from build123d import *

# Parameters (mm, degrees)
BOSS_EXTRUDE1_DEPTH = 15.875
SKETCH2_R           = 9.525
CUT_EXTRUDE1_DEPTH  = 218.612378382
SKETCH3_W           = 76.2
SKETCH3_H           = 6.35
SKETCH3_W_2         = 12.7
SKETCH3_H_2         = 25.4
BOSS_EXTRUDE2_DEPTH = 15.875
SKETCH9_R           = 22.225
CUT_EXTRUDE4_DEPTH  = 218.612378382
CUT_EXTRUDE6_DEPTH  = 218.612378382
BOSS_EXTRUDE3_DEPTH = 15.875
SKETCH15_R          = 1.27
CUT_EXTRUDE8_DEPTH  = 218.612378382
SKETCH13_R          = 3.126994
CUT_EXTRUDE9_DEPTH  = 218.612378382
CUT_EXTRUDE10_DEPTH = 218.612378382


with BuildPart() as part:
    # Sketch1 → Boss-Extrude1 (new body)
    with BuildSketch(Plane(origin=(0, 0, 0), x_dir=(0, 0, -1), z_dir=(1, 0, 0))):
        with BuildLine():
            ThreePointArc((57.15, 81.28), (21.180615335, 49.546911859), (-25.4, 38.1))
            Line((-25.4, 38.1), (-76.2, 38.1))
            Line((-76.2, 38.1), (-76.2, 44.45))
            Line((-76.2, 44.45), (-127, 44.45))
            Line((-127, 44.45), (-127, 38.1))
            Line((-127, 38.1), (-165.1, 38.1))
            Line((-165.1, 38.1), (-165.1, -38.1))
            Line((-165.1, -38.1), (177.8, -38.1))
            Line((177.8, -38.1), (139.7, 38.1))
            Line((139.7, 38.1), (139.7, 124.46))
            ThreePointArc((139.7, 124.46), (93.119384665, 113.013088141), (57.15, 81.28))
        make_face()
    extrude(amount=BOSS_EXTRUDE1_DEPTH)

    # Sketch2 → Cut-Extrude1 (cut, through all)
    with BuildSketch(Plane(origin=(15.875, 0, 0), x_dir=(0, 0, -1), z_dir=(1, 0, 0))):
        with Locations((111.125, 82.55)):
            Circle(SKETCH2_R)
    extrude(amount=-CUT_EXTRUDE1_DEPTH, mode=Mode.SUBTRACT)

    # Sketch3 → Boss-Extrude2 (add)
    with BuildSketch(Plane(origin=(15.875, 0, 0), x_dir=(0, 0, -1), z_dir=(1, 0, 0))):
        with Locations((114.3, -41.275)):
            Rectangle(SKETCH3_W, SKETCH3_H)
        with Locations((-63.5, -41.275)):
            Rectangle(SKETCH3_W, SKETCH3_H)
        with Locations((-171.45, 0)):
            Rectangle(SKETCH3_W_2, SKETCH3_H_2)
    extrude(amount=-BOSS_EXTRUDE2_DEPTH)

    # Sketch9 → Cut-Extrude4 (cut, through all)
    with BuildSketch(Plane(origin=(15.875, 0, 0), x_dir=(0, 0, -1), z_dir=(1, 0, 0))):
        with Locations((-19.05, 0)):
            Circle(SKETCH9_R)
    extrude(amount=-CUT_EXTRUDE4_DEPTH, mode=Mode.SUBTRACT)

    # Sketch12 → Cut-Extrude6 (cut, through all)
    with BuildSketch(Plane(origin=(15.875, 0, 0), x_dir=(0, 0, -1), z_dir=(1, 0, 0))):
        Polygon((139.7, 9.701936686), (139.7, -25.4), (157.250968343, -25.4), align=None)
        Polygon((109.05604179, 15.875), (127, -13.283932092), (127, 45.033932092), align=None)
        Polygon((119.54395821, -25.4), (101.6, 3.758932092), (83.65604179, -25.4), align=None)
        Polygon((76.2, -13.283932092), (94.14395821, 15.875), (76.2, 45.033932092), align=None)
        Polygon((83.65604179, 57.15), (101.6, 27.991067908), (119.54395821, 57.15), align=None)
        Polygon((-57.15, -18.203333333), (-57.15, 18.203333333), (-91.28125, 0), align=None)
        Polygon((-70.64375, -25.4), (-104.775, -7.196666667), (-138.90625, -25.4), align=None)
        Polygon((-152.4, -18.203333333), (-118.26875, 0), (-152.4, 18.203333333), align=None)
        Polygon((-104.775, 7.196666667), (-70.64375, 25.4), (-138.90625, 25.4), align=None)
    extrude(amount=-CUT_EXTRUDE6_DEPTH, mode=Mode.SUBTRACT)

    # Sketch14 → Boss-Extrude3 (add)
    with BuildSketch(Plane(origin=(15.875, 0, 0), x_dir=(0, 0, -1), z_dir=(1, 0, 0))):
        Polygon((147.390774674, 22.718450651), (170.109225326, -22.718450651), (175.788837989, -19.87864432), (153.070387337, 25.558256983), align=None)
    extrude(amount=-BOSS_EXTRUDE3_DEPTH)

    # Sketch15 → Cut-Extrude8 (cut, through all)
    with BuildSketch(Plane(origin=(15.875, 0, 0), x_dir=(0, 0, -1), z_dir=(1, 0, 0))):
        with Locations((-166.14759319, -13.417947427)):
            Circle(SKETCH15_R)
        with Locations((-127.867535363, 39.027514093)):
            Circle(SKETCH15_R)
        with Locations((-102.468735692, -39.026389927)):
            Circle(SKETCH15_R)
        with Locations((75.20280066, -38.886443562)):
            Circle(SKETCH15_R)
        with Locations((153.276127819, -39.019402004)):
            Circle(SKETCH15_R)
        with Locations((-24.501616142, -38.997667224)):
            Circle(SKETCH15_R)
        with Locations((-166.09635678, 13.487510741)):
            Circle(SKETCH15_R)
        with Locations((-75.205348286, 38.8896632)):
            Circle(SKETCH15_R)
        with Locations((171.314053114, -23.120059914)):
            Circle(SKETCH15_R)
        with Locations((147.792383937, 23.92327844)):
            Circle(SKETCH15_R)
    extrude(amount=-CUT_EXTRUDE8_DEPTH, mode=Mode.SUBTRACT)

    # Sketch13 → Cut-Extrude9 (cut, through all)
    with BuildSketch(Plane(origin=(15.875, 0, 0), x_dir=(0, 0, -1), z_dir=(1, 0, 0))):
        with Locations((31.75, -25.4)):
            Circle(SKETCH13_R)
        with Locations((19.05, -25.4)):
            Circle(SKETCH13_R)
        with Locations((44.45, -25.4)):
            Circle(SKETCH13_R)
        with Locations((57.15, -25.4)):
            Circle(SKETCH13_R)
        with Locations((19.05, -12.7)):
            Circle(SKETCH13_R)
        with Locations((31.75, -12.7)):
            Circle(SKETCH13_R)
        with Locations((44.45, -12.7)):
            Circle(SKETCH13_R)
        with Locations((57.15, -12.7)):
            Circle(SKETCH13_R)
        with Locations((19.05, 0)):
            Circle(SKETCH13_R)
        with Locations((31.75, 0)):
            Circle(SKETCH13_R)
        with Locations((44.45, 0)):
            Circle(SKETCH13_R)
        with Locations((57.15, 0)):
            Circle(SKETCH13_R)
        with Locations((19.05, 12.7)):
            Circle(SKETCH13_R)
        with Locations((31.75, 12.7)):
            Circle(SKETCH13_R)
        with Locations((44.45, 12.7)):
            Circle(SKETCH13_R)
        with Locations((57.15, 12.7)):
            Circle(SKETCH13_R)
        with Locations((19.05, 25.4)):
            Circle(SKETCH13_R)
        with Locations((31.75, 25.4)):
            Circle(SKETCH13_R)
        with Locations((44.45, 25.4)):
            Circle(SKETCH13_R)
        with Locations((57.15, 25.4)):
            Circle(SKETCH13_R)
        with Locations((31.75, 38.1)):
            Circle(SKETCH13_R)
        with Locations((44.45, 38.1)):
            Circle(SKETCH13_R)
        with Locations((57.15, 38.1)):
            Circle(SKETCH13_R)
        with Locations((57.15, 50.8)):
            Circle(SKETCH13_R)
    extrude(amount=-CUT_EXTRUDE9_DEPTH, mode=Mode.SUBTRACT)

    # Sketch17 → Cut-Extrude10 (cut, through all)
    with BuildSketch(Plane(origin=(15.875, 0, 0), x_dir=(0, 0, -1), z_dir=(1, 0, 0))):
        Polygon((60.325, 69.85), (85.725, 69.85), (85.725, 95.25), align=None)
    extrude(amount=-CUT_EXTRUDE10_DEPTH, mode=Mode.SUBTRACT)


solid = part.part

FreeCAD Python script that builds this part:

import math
import FreeCAD as App
import Part
import Sketcher
Q = App.Units.Quantity

doc = App.newDocument("Part")
body = doc.addObject("PartDesign::Body", "Body")

# Sketch on YZ plane
sketch1 = body.newObject("Sketcher::SketchObject", "Sketch")
sketch1.AttachmentSupport = (doc.getObject("YZ_Plane"), [""])
sketch1.MapMode = "FlatFace"
sketch1.addGeometry([
    Part.ArcOfCircle(Part.Circle(App.Vector(139, 25, 0), App.Vector(0, 0, 1), 100), math.radians(180), math.radians(235)),  # 0
    Part.LineSegment(App.Vector(38, 25, 0), App.Vector(38, 76, 0)),  # 1
    Part.LineSegment(App.Vector(38, 76, 0), App.Vector(44, 76, 0)),  # 2
    Part.LineSegment(App.Vector(44, 76, 0), App.Vector(44, 127, 0)),  # 3
    Part.LineSegment(App.Vector(44, 127, 0), App.Vector(38, 127, 0)),  # 4
    Part.LineSegment(App.Vector(38, 127, 0), App.Vector(38, 165, 0)),  # 5
    Part.LineSegment(App.Vector(38, 165, 0), App.Vector(-38, 165, 0)),  # 6
    Part.LineSegment(App.Vector(-38, 165, 0), App.Vector(-38, -178, 0)),  # 7
    Part.LineSegment(App.Vector(-38, -178, 0), App.Vector(38, -140, 0)),  # 8
    Part.LineSegment(App.Vector(38, -140, 0), App.Vector(124, -140, 0)),  # 9
    Part.ArcOfCircle(Part.Circle(App.Vector(24, -140, 0), App.Vector(0, 0, 1), 100), math.radians(0), math.radians(55)),  # 10
], False)
sketch1.addConstraint([
    Sketcher.Constraint("Tangent", 0, 1, 1, 1),
    Sketcher.Constraint("Coincident", 1, 2, 2, 1),
    Sketcher.Constraint("Coincident", 2, 2, 3, 1),
    Sketcher.Constraint("Coincident", 3, 2, 4, 1),
    Sketcher.Constraint("Coincident", 4, 2, 5, 1),
    Sketcher.Constraint("Coincident", 5, 2, 6, 1),
    Sketcher.Constraint("Coincident", 6, 2, 7, 1),
    Sketcher.Constraint("Coincident", 7, 2, 8, 1),
    Sketcher.Constraint("Coincident", 8, 2, 9, 1),
    Sketcher.Constraint("Coincident", 9, 2, 10, 1),
    Sketcher.Constraint("Tangent", 10, 2, 0, 2),
    Sketcher.Constraint("Vertical", 1),
    Sketcher.Constraint("Horizontal", 2),
    Sketcher.Constraint("Vertical", 3),
    Sketcher.Constraint("Horizontal", 4),
    Sketcher.Constraint("Vertical", 5),
    Sketcher.Constraint("Horizontal", 6),
    Sketcher.Constraint("Vertical", 7),
    Sketcher.Constraint("Horizontal", 9),
    Sketcher.Constraint("Equal", 0, 10),
    Sketcher.Constraint("Horizontal", 10, 3, 8, 2),
    Sketcher.Constraint("Vertical", 1, 2, 4, 2),
    Sketcher.Constraint("Vertical", 5, 2, 8, 2),
    Sketcher.Constraint("Equal", 1, 3),
    Sketcher.Constraint("DistanceX", 6, 2, 6, 1, Q("3 in")),
    Sketcher.Constraint("DistanceY", 1, 1, 1, 2, Q("2 in")),
    Sketcher.Constraint("DistanceX", 9, 1, 9, 2, Q("3.4 in")),
    Sketcher.Constraint("DistanceY", 5, 1, 5, 2, Q("1.5 in")),
    Sketcher.Constraint("DistanceY", 7, 2, 7, 1, Q("13.5 in")),
    Sketcher.Constraint("DistanceY", -1, 1, 0, 3, Q("1 in")),
    Sketcher.Constraint("DistanceX", 2, 1, 2, 2, Q("0.25 in")),
    Sketcher.Constraint("DistanceY", 10, 3, -1, 1, Q("5.5 in")),
    Sketcher.Constraint("DistanceX", -1, 1, 0, 1, Q("1.5 in")),
])
pad1 = body.newObject("PartDesign::Pad", "Pad")
pad1.Profile = sketch1
pad1.Length = Q("0.625 in")

# Sketch on YZ plane
sketch2 = body.newObject("Sketcher::SketchObject", "Sketch001")
sketch2.AttachmentSupport = (doc.getObject("YZ_Plane"), [""])
sketch2.MapMode = "FlatFace"
sketch2.AttachmentOffset = App.Placement(App.Vector(0, 0, 0.625 * 25.4), App.Rotation())
sketch2.addGeometry(Part.Circle(App.Vector(83, -111, 0), App.Vector(0, 0, 1), 10), False)
sketch2.addConstraint([
    Sketcher.Constraint("Diameter", 0, Q("0.75 in")),
    Sketcher.Constraint("DistanceX", -1, 1, 0, 3, Q("3.25 in")),
    Sketcher.Constraint("DistanceY", 0, 3, -1, 1, Q("4.375 in")),
])
pocket1 = body.newObject("PartDesign::Pocket", "Pocket")
pocket1.Profile = sketch2
pocket1.Type = "ThroughAll"

# Sketch on YZ plane
sketch3 = body.newObject("Sketcher::SketchObject", "Sketch002")
sketch3.AttachmentSupport = (doc.getObject("YZ_Plane"), [""])
sketch3.MapMode = "FlatFace"
sketch3.AttachmentOffset = App.Placement(App.Vector(0, 0, 0.625 * 25.4), App.Rotation())
sketch3.addGeometry([
    Part.LineSegment(App.Vector(-38, -76, 0), App.Vector(-44, -76, 0)),  # 0
    Part.LineSegment(App.Vector(-44, -76, 0), App.Vector(-44, -152, 0)),  # 1
    Part.LineSegment(App.Vector(-44, -152, 0), App.Vector(-38, -152, 0)),  # 2
    Part.LineSegment(App.Vector(-38, -152, 0), App.Vector(-38, -76, 0)),  # 3
    Part.LineSegment(App.Vector(-38, 102, 0), App.Vector(-44, 102, 0)),  # 4
    Part.LineSegment(App.Vector(-44, 102, 0), App.Vector(-44, 25, 0)),  # 5
    Part.LineSegment(App.Vector(-44, 25, 0), App.Vector(-38, 25, 0)),  # 6
    Part.LineSegment(App.Vector(-38, 25, 0), App.Vector(-38, 102, 0)),  # 7
    Part.LineSegment(App.Vector(13, 178, 0), App.Vector(-13, 178, 0)),  # 8
    Part.LineSegment(App.Vector(-13, 178, 0), App.Vector(-13, 165, 0)),  # 9
    Part.LineSegment(App.Vector(-13, 165, 0), App.Vector(13, 165, 0)),  # 10
    Part.LineSegment(App.Vector(13, 165, 0), App.Vector(13, 178, 0)),  # 11
], False)
sketch3.addConstraint([
    Sketcher.Constraint("Coincident", 0, 2, 1, 1),
    Sketcher.Constraint("Coincident", 1, 2, 2, 1),
    Sketcher.Constraint("Coincident", 2, 2, 3, 1),
    Sketcher.Constraint("Coincident", 3, 2, 0, 1),
    Sketcher.Constraint("Coincident", 4, 2, 5, 1),
    Sketcher.Constraint("Coincident", 5, 2, 6, 1),
    Sketcher.Constraint("Coincident", 6, 2, 7, 1),
    Sketcher.Constraint("Coincident", 7, 2, 4, 1),
    Sketcher.Constraint("Coincident", 8, 2, 9, 1),
    Sketcher.Constraint("Coincident", 9, 2, 10, 1),
    Sketcher.Constraint("Coincident", 10, 2, 11, 1),
    Sketcher.Constraint("Coincident", 11, 2, 8, 1),
    Sketcher.Constraint("Horizontal", 0),
    Sketcher.Constraint("Vertical", 1),
    Sketcher.Constraint("Horizontal", 2),
    Sketcher.Constraint("Vertical", 3),
    Sketcher.Constraint("Horizontal", 4),
    Sketcher.Constraint("Vertical", 5),
    Sketcher.Constraint("Horizontal", 6),
    Sketcher.Constraint("Vertical", 7),
    Sketcher.Constraint("Horizontal", 8),
    Sketcher.Constraint("Vertical", 9),
    Sketcher.Constraint("Horizontal", 10),
    Sketcher.Constraint("Vertical", 11),
    Sketcher.Constraint("Vertical", 1, 2, 4, 2),
    Sketcher.Constraint("Vertical", 3, 2, 6, 2),
    Sketcher.Constraint("Equal", 3, 5),
    Sketcher.Constraint("DistanceX", 8, 2, 8, 1, Q("1 in")),
    Sketcher.Constraint("DistanceY", 1, 2, 1, 1, Q("3 in")),
    Sketcher.Constraint("DistanceY", 9, 2, 9, 1, Q("0.5 in")),
    Sketcher.Constraint("DistanceY", 0, 2, -1, 1, Q("3 in")),
    Sketcher.Constraint("DistanceY", -1, 1, 4, 2, Q("4 in")),
    Sketcher.Constraint("DistanceY", -1, 1, 8, 2, Q("7 in")),
    Sketcher.Constraint("DistanceX", 7, 2, 8, 2, Q("1 in")),
    Sketcher.Constraint("DistanceX", 0, 2, 0, 1, Q("0.25 in")),
    Sketcher.Constraint("DistanceX", 2, 2, -1, 1, Q("1.5 in")),
])
pad2 = body.newObject("PartDesign::Pad", "Pad001")
pad2.Profile = sketch3
pad2.Length = Q("0.625 in")
pad2.Reversed = True

# Sketch on YZ plane
sketch4 = body.newObject("Sketcher::SketchObject", "Sketch003")
sketch4.AttachmentSupport = (doc.getObject("YZ_Plane"), [""])
sketch4.MapMode = "FlatFace"
sketch4.AttachmentOffset = App.Placement(App.Vector(0, 0, 0.625 * 25.4), App.Rotation())
sketch4.addGeometry(Part.Circle(App.Vector(0, 19, 0), App.Vector(0, 0, 1), 22), False)
sketch4.addConstraint([
    Sketcher.Constraint("PointOnObject", 0, 3, -2),
    Sketcher.Constraint("Diameter", 0, Q("1.75 in")),
    Sketcher.Constraint("DistanceY", -1, 1, 0, 3, Q("0.75 in")),
])
pocket2 = body.newObject("PartDesign::Pocket", "Pocket001")
pocket2.Profile = sketch4
pocket2.Type = "ThroughAll"

# Sketch on YZ plane
sketch5 = body.newObject("Sketcher::SketchObject", "Sketch004")
sketch5.AttachmentSupport = (doc.getObject("YZ_Plane"), [""])
sketch5.MapMode = "FlatFace"
sketch5.AttachmentOffset = App.Placement(App.Vector(0, 0, 0.625 * 25.4), App.Rotation())
sketch5.addGeometry([
    Part.LineSegment(App.Vector(10, -140, 0), App.Vector(-25, -140, 0)),  # 0
    Part.LineSegment(App.Vector(-25, -140, 0), App.Vector(-25, -157, 0)),  # 1
    Part.LineSegment(App.Vector(-25, -157, 0), App.Vector(10, -140, 0)),  # 2
    Part.LineSegment(App.Vector(16, -109, 0), App.Vector(-13, -127, 0)),  # 3
    Part.LineSegment(App.Vector(-13, -127, 0), App.Vector(45, -127, 0)),  # 4
    Part.LineSegment(App.Vector(45, -127, 0), App.Vector(16, -109, 0)),  # 5
    Part.LineSegment(App.Vector(-25, -120, 0), App.Vector(4, -102, 0)),  # 6
    Part.LineSegment(App.Vector(4, -102, 0), App.Vector(-25, -84, 0)),  # 7
    Part.LineSegment(App.Vector(-25, -84, 0), App.Vector(-25, -120, 0)),  # 8
    Part.LineSegment(App.Vector(-13, -76, 0), App.Vector(16, -94, 0)),  # 9
    Part.LineSegment(App.Vector(16, -94, 0), App.Vector(45, -76, 0)),  # 10
    Part.LineSegment(App.Vector(45, -76, 0), App.Vector(-13, -76, 0)),  # 11
    Part.LineSegment(App.Vector(57, -84, 0), App.Vector(28, -102, 0)),  # 12
    Part.LineSegment(App.Vector(28, -102, 0), App.Vector(57, -120, 0)),  # 13
    Part.LineSegment(App.Vector(57, -120, 0), App.Vector(57, -84, 0)),  # 14
    Part.LineSegment(App.Vector(-18, 57, 0), App.Vector(18, 57, 0)),  # 15
    Part.LineSegment(App.Vector(18, 57, 0), App.Vector(0, 91, 0)),  # 16
    Part.LineSegment(App.Vector(0, 91, 0), App.Vector(-18, 57, 0)),  # 17
    Part.LineSegment(App.Vector(-25, 71, 0), App.Vector(-7, 105, 0)),  # 18
    Part.LineSegment(App.Vector(-7, 105, 0), App.Vector(-25, 139, 0)),  # 19
    Part.LineSegment(App.Vector(-25, 139, 0), App.Vector(-25, 71, 0)),  # 20
    Part.LineSegment(App.Vector(-18, 152, 0), App.Vector(0, 118, 0)),  # 21
    Part.LineSegment(App.Vector(0, 118, 0), App.Vector(18, 152, 0)),  # 22
    Part.LineSegment(App.Vector(18, 152, 0), App.Vector(-18, 152, 0)),  # 23
    Part.LineSegment(App.Vector(7, 105, 0), App.Vector(25, 71, 0)),  # 24
    Part.LineSegment(App.Vector(25, 71, 0), App.Vector(25, 139, 0)),  # 25
    Part.LineSegment(App.Vector(25, 139, 0), App.Vector(7, 105, 0)),  # 26
], False)
sketch5.addConstraint([
    Sketcher.Constraint("Coincident", 0, 2, 1, 1),
    Sketcher.Constraint("Coincident", 1, 2, 2, 1),
    Sketcher.Constraint("Coincident", 2, 2, 0, 1),
    Sketcher.Constraint("Coincident", 3, 2, 4, 1),
    Sketcher.Constraint("Coincident", 4, 2, 5, 1),
    Sketcher.Constraint("Coincident", 5, 2, 3, 1),
    Sketcher.Constraint("Coincident", 6, 2, 7, 1),
    Sketcher.Constraint("Coincident", 7, 2, 8, 1),
    Sketcher.Constraint("Coincident", 8, 2, 6, 1),
    Sketcher.Constraint("Coincident", 9, 2, 10, 1),
    Sketcher.Constraint("Coincident", 10, 2, 11, 1),
    Sketcher.Constraint("Coincident", 11, 2, 9, 1),
    Sketcher.Constraint("Coincident", 12, 2, 13, 1),
    Sketcher.Constraint("Coincident", 13, 2, 14, 1),
    Sketcher.Constraint("Coincident", 14, 2, 12, 1),
    Sketcher.Constraint("Coincident", 15, 2, 16, 1),
    Sketcher.Constraint("Coincident", 16, 2, 17, 1),
    Sketcher.Constraint("Coincident", 17, 2, 15, 1),
    Sketcher.Constraint("Coincident", 18, 2, 19, 1),
    Sketcher.Constraint("Coincident", 19, 2, 20, 1),
    Sketcher.Constraint("Coincident", 20, 2, 18, 1),
    Sketcher.Constraint("Coincident", 21, 2, 22, 1),
    Sketcher.Constraint("Coincident", 22, 2, 23, 1),
    Sketcher.Constraint("Coincident", 23, 2, 21, 1),
    Sketcher.Constraint("Coincident", 24, 2, 25, 1),
    Sketcher.Constraint("Coincident", 25, 2, 26, 1),
    Sketcher.Constraint("Coincident", 26, 2, 24, 1),
    Sketcher.Constraint("Horizontal", 0),
    Sketcher.Constraint("Vertical", 1),
    Sketcher.Constraint("Horizontal", 4),
    Sketcher.Constraint("Vertical", 8),
    Sketcher.Constraint("Horizontal", 11),
    Sketcher.Constraint("Vertical", 14),
    Sketcher.Constraint("Horizontal", 15),
    Sketcher.Constraint("Vertical", 20),
    Sketcher.Constraint("Horizontal", 23),
    Sketcher.Constraint("Vertical", 25),
    Sketcher.Constraint("Symmetric", 20, 2, 24, 2, -2),
    Sketcher.Constraint("Symmetric", 18, 2, 26, 2, -2),
    Sketcher.Constraint("PointOnObject", 16, 2, -2),
    Sketcher.Constraint("PointOnObject", 21, 2, -2),
    Sketcher.Constraint("Parallel", 3, 6),
    Sketcher.Constraint("Parallel", 5, 7),
    Sketcher.Constraint("Parallel", 7, 9),
    Sketcher.Constraint("Parallel", 6, 10),
    Sketcher.Constraint("Parallel", 10, 12),
    Sketcher.Constraint("Parallel", 9, 13),
    Sketcher.Constraint("Parallel", 17, 18),
    Sketcher.Constraint("Parallel", 16, 19),
    Sketcher.Constraint("Parallel", 19, 21),
    Sketcher.Constraint("Parallel", 18, 22),
    Sketcher.Constraint("Parallel", 21, 24),
    Sketcher.Constraint("Parallel", 22, 26),
    Sketcher.Constraint("Horizontal", 6, 2, 12, 2),
    Sketcher.Constraint("Horizontal", 8, 2, 13, 2),
    Sketcher.Constraint("Horizontal", 7, 2, 14, 2),
    Sketcher.Constraint("Vertical", 1, 2, 7, 2),
    Sketcher.Constraint("Vertical", 5, 2, 9, 2),
    Sketcher.Constraint("Vertical", 4, 2, 10, 2),
    Sketcher.Constraint("Vertical", 8, 2, 19, 2),
    Sketcher.Constraint("Vertical", 15, 2, 22, 2),
    Sketcher.Constraint("Equal", 5, 6),
    Sketcher.Constraint("Equal", 17, 18),
    Sketcher.Constraint("DistanceX", 0, 2, -1, 1, Q("1 in")),
    Sketcher.Constraint("DistanceY", 3, 2, -1, 1, Q("5 in")),
    Sketcher.Constraint("DistanceY", 6, 2, -1, 1, Q("4 in")),
    Sketcher.Constraint("DistanceY", 10, 2, -1, 1, Q("3 in")),
    Sketcher.Constraint("DistanceY", -1, 1, 22, 2, Q("6 in")),
    Sketcher.Constraint("DistanceY", 0, 2, -1, 1, Q("5.5 in")),
    Sketcher.Constraint("DistanceY", 20, 2, 20, 1, Q("2.6875 in")),
    Sketcher.Constraint("DistanceX", -1, 1, 13, 2, Q("2.25 in")),
    Sketcher.Constraint("DistanceY", -1, 1, 15, 2, Q("2.25 in")),
    Sketcher.Constraint("DistanceX", -1, 1, 5, 2, Q("0.625 in")),
    Sketcher.Constraint("DistanceY", -1, 1, 18, 2, Q("4.125 in")),
    Sketcher.Constraint("DistanceY", 1, 2, 1, 1, Q("17.550968 mm")),
    Sketcher.Constraint("DistanceX", 15, 2, 10, 2, Q("26.830599 mm")),
    Sketcher.Constraint("Distance", 2, Q("39.245158 mm")),
    Sketcher.Constraint("Distance", 3, Q("34.237829 mm")),
    Sketcher.Constraint("DistanceX", 4, 1, 4, 2, Q("58.317864 mm")),
])
pocket3 = body.newObject("PartDesign::Pocket", "Pocket002")
pocket3.Profile = sketch5
pocket3.Type = "ThroughAll"

# Sketch on YZ plane
sketch6 = body.newObject("Sketcher::SketchObject", "Sketch005")
sketch6.AttachmentSupport = (doc.getObject("YZ_Plane"), [""])
sketch6.MapMode = "FlatFace"
sketch6.AttachmentOffset = App.Placement(App.Vector(0, 0, 0.625 * 25.4), App.Rotation())
sketch6.addGeometry([
    Part.LineSegment(App.Vector(23, -147, 0), App.Vector(-23, -170, 0)),
    Part.LineSegment(App.Vector(-23, -170, 0), App.Vector(-20, -176, 0)),
    Part.LineSegment(App.Vector(-20, -176, 0), App.Vector(26, -153, 0)),
    Part.LineSegment(App.Vector(26, -153, 0), App.Vector(23, -147, 0)),
], False)
sketch6.addConstraint([
    Sketcher.Constraint("Coincident", 0, 2, 1, 1),
    Sketcher.Constraint("Coincident", 1, 2, 2, 1),
    Sketcher.Constraint("Coincident", 2, 2, 3, 1),
    Sketcher.Constraint("Coincident", 3, 2, 0, 1),
    Sketcher.Constraint("Perpendicular", 0, 1),
    Sketcher.Constraint("Perpendicular", 1, 2),
    Sketcher.Constraint("Perpendicular", 2, 3),
    Sketcher.Constraint("Distance", 0, Q("2 in")),
    Sketcher.Constraint("Distance", 1, Q("0.25 in")),
    Sketcher.Constraint("DistanceX", 1, 2, 2, 2, Q("45.436901 mm")),
    Sketcher.Constraint("DistanceX", 0, 2, -1, 1, Q("22.718451 mm")),
    Sketcher.Constraint("DistanceY", 0, 2, -1, 1, Q("170.109225 mm")),
])
pad3 = body.newObject("PartDesign::Pad", "Pad002")
pad3.Profile = sketch6
pad3.Length = Q("0.625 in")
pad3.Reversed = True

# Sketch on YZ plane
sketch7 = body.newObject("Sketcher::SketchObject", "Sketch006")
sketch7.AttachmentSupport = (doc.getObject("YZ_Plane"), [""])
sketch7.MapMode = "FlatFace"
sketch7.AttachmentOffset = App.Placement(App.Vector(0, 0, 0.625 * 25.4), App.Rotation())
sketch7.addGeometry([
    Part.Circle(App.Vector(-13.4, 166.1, 0), App.Vector(0, 0, 1), 1.3),  # 0
    Part.Circle(App.Vector(39, 127.9, 0), App.Vector(0, 0, 1), 1.3),  # 1
    Part.Circle(App.Vector(-39, 102.5, 0), App.Vector(0, 0, 1), 1.3),  # 2
    Part.Circle(App.Vector(-38.9, -75.2, 0), App.Vector(0, 0, 1), 1.3),  # 3
    Part.Circle(App.Vector(-39, -153.3, 0), App.Vector(0, 0, 1), 1.3),  # 4
    Part.Circle(App.Vector(-39, 24.5, 0), App.Vector(0, 0, 1), 1.3),  # 5
    Part.Circle(App.Vector(13.5, 166.1, 0), App.Vector(0, 0, 1), 1.3),  # 6
    Part.Circle(App.Vector(38.9, 75.2, 0), App.Vector(0, 0, 1), 1.3),  # 7
    Part.Circle(App.Vector(-23.1, -171.3, 0), App.Vector(0, 0, 1), 1.3),  # 8
    Part.Circle(App.Vector(23.9, -147.8, 0), App.Vector(0, 0, 1), 1.3),  # 9
], False)
sketch7.addConstraint([
    Sketcher.Constraint("Equal", 0, 1),
    Sketcher.Constraint("Equal", 1, 2),
    Sketcher.Constraint("Equal", 2, 3),
    Sketcher.Constraint("Equal", 3, 4),
    Sketcher.Constraint("Equal", 4, 5),
    Sketcher.Constraint("Equal", 5, 6),
    Sketcher.Constraint("Equal", 6, 7),
    Sketcher.Constraint("Equal", 7, 8),
    Sketcher.Constraint("Equal", 8, 9),
    Sketcher.Constraint("Diameter", 0, Q("0.1 in")),
    Sketcher.Constraint("DistanceX", 8, 3, 9, 3, Q("1.8520999 in")),
    Sketcher.Constraint("DistanceY", 3, 3, -1, 1, Q("75.202801 mm")),
    Sketcher.Constraint("DistanceY", 2, 3, 1, 3, Q("25.3988 mm")),
    Sketcher.Constraint("DistanceX", 2, 3, 6, 3, Q("52.513901 mm")),
    Sketcher.Constraint("DistanceY", 8, 3, 7, 3, Q("246.519401 mm")),
    Sketcher.Constraint("DistanceY", 9, 3, 5, 3, Q("172.294 mm")),
    Sketcher.Constraint("DistanceX", 2, 3, -1, 1, Q("39.02639 mm")),
    Sketcher.Constraint("DistanceY", -1, 1, 7, 3, Q("75.205348 mm")),
    Sketcher.Constraint("DistanceX", 8, 3, -1, 1, Q("23.12006 mm")),
    Sketcher.Constraint("DistanceX", 0, 3, 1, 3, Q("52.445462 mm")),
    Sketcher.Constraint("DistanceX", 4, 3, 3, 3, Q("0.132958 mm")),
    Sketcher.Constraint("DistanceY", 4, 3, 0, 3, Q("319.423721 mm")),
    Sketcher.Constraint("DistanceY", 5, 3, 2, 3, Q("77.96712 mm")),
    Sketcher.Constraint("DistanceX", 5, 3, 1, 3, Q("78.025181 mm")),
    Sketcher.Constraint("DistanceX", 0, 3, 6, 3, Q("26.905458 mm")),
    Sketcher.Constraint("DistanceY", 1, 3, 6, 3, Q("38.228821 mm")),
    Sketcher.Constraint("DistanceX", 7, 3, 1, 3, Q("0.137851 mm")),
    Sketcher.Constraint("DistanceY", 7, 3, 6, 3, Q("90.891008 mm")),
    Sketcher.Constraint("DistanceX", 4, 3, 9, 3, Q("62.94268 mm")),
    Sketcher.Constraint("DistanceY", -1, 1, 0, 3, Q("166.147593 mm")),
])
pocket4 = body.newObject("PartDesign::Pocket", "Pocket003")
pocket4.Profile = sketch7
pocket4.Type = "ThroughAll"

# Sketch on YZ plane
sketch8 = body.newObject("Sketcher::SketchObject", "Sketch007")
sketch8.AttachmentSupport = (doc.getObject("YZ_Plane"), [""])
sketch8.MapMode = "FlatFace"
sketch8.AttachmentOffset = App.Placement(App.Vector(0, 0, 0.625 * 25.4), App.Rotation())
sketch8.addGeometry([
    Part.Circle(App.Vector(-25.4, -31.8, 0), App.Vector(0, 0, 1), 3.1),  # 0
    Part.Circle(App.Vector(-25.4, -19.1, 0), App.Vector(0, 0, 1), 3.1),  # 1
    Part.Circle(App.Vector(-25.4, -44.5, 0), App.Vector(0, 0, 1), 3.1),  # 2
    Part.Circle(App.Vector(-25.4, -57.1, 0), App.Vector(0, 0, 1), 3.1),  # 3
    Part.Circle(App.Vector(-12.7, -19.1, 0), App.Vector(0, 0, 1), 3.1),  # 4
    Part.Circle(App.Vector(-12.7, -31.8, 0), App.Vector(0, 0, 1), 3.1),  # 5
    Part.Circle(App.Vector(-12.7, -44.5, 0), App.Vector(0, 0, 1), 3.1),  # 6
    Part.Circle(App.Vector(-12.7, -57.1, 0), App.Vector(0, 0, 1), 3.1),  # 7
    Part.Circle(App.Vector(0, -19.1, 0), App.Vector(0, 0, 1), 3.1),  # 8
    Part.Circle(App.Vector(0, -31.8, 0), App.Vector(0, 0, 1), 3.1),  # 9
    Part.Circle(App.Vector(0, -44.5, 0), App.Vector(0, 0, 1), 3.1),  # 10
    Part.Circle(App.Vector(0, -57.1, 0), App.Vector(0, 0, 1), 3.1),  # 11
    Part.Circle(App.Vector(12.7, -19.1, 0), App.Vector(0, 0, 1), 3.1),  # 12
    Part.Circle(App.Vector(12.7, -31.8, 0), App.Vector(0, 0, 1), 3.1),  # 13
    Part.Circle(App.Vector(12.7, -44.5, 0), App.Vector(0, 0, 1), 3.1),  # 14
    Part.Circle(App.Vector(12.7, -57.1, 0), App.Vector(0, 0, 1), 3.1),  # 15
    Part.Circle(App.Vector(25.4, -19.1, 0), App.Vector(0, 0, 1), 3.1),  # 16
    Part.Circle(App.Vector(25.4, -31.8, 0), App.Vector(0, 0, 1), 3.1),  # 17
    Part.Circle(App.Vector(25.4, -44.5, 0), App.Vector(0, 0, 1), 3.1),  # 18
    Part.Circle(App.Vector(25.4, -57.1, 0), App.Vector(0, 0, 1), 3.1),  # 19
    Part.Circle(App.Vector(38.1, -31.8, 0), App.Vector(0, 0, 1), 3.1),  # 20
    Part.Circle(App.Vector(38.1, -44.5, 0), App.Vector(0, 0, 1), 3.1),  # 21
    Part.Circle(App.Vector(38.1, -57.1, 0), App.Vector(0, 0, 1), 3.1),  # 22
    Part.Circle(App.Vector(50.8, -57.1, 0), App.Vector(0, 0, 1), 3.1),  # 23
], False)
sketch8.addConstraint([
    Sketcher.Constraint("Equal", 0, 1),
    Sketcher.Constraint("Equal", 1, 2),
    Sketcher.Constraint("Equal", 2, 3),
    Sketcher.Constraint("Equal", 3, 4),
    Sketcher.Constraint("Equal", 4, 5),
    Sketcher.Constraint("Equal", 5, 6),
    Sketcher.Constraint("Equal", 6, 7),
    Sketcher.Constraint("Equal", 7, 8),
    Sketcher.Constraint("Equal", 8, 9),
    Sketcher.Constraint("Equal", 9, 10),
    Sketcher.Constraint("Equal", 10, 11),
    Sketcher.Constraint("Equal", 11, 12),
    Sketcher.Constraint("Equal", 12, 13),
    Sketcher.Constraint("Equal", 13, 14),
    Sketcher.Constraint("Equal", 14, 15),
    Sketcher.Constraint("Equal", 15, 16),
    Sketcher.Constraint("Equal", 16, 17),
    Sketcher.Constraint("Equal", 17, 18),
    Sketcher.Constraint("Equal", 18, 19),
    Sketcher.Constraint("Equal", 19, 20),
    Sketcher.Constraint("Equal", 20, 21),
    Sketcher.Constraint("Equal", 21, 22),
    Sketcher.Constraint("Equal", 22, 23),
    Sketcher.Constraint("Symmetric", 4, 3, 12, 3, -2),
    Sketcher.Constraint("Symmetric", 5, 3, 13, 3, -2),
    Sketcher.Constraint("Symmetric", 6, 3, 14, 3, -2),
    Sketcher.Constraint("Symmetric", 7, 3, 15, 3, -2),
    Sketcher.Constraint("Symmetric", 1, 3, 16, 3, -2),
    Sketcher.Constraint("Symmetric", 0, 3, 17, 3, -2),
    Sketcher.Constraint("Symmetric", 2, 3, 18, 3, -2),
    Sketcher.Constraint("Symmetric", 3, 3, 19, 3, -2),
    Sketcher.Constraint("PointOnObject", 8, 3, -2),
    Sketcher.Constraint("PointOnObject", 9, 3, -2),
    Sketcher.Constraint("PointOnObject", 10, 3, -2),
    Sketcher.Constraint("PointOnObject", 11, 3, -2),
    Sketcher.Constraint("Horizontal", 1, 3, 4, 3),
    Sketcher.Constraint("Horizontal", 0, 3, 5, 3),
    Sketcher.Constraint("Horizontal", 2, 3, 6, 3),
    Sketcher.Constraint("Horizontal", 3, 3, 7, 3),
    Sketcher.Constraint("Horizontal", 4, 3, 8, 3),
    Sketcher.Constraint("Horizontal", 5, 3, 9, 3),
    Sketcher.Constraint("Horizontal", 6, 3, 10, 3),
    Sketcher.Constraint("Horizontal", 7, 3, 11, 3),
    Sketcher.Constraint("Horizontal", 17, 3, 20, 3),
    Sketcher.Constraint("Horizontal", 18, 3, 21, 3),
    Sketcher.Constraint("Horizontal", 19, 3, 22, 3),
    Sketcher.Constraint("Horizontal", 22, 3, 23, 3),
    Sketcher.Constraint("Vertical", 0, 3, 1, 3),
    Sketcher.Constraint("Vertical", 1, 3, 2, 3),
    Sketcher.Constraint("Vertical", 2, 3, 3, 3),
    Sketcher.Constraint("Vertical", 4, 3, 5, 3),
    Sketcher.Constraint("Vertical", 5, 3, 6, 3),
    Sketcher.Constraint("Vertical", 6, 3, 7, 3),
    Sketcher.Constraint("Vertical", 20, 3, 21, 3),
    Sketcher.Constraint("Vertical", 21, 3, 22, 3),
    Sketcher.Constraint("DistanceX", 0, 3, -1, 1, Q("1 in")),
    Sketcher.Constraint("DistanceX", -1, 1, 23, 3, Q("2 in")),
    Sketcher.Constraint("DistanceY", 2, 3, 1, 3, Q("1 in")),
    Sketcher.Constraint("DistanceY", 3, 3, 0, 3, Q("1 in")),
    Sketcher.Constraint("DistanceX", 4, 3, 12, 3, Q("1 in")),
    Sketcher.Constraint("DistanceX", 13, 3, 20, 3, Q("1 in")),
    Sketcher.Constraint("DistanceY", 0, 3, 1, 3, Q("0.5 in")),
    Sketcher.Constraint("DistanceY", 0, 3, -1, 1, Q("1.25 in")),
    Sketcher.Constraint("Diameter", 0, Q("6.253988 mm")),
])
pocket5 = body.newObject("PartDesign::Pocket", "Pocket004")
pocket5.Profile = sketch8
pocket5.Type = "ThroughAll"

# Sketch on YZ plane
sketch9 = body.newObject("Sketcher::SketchObject", "Sketch008")
sketch9.AttachmentSupport = (doc.getObject("YZ_Plane"), [""])
sketch9.MapMode = "FlatFace"
sketch9.AttachmentOffset = App.Placement(App.Vector(0, 0, 0.625 * 25.4), App.Rotation())
sketch9.addGeometry([
    Part.LineSegment(App.Vector(70, -60, 0), App.Vector(70, -86, 0)),
    Part.LineSegment(App.Vector(70, -86, 0), App.Vector(95, -86, 0)),
    Part.LineSegment(App.Vector(95, -86, 0), App.Vector(70, -60, 0)),
], False)
sketch9.addConstraint([
    Sketcher.Constraint("Coincident", 0, 2, 1, 1),
    Sketcher.Constraint("Coincident", 1, 2, 2, 1),
    Sketcher.Constraint("Coincident", 2, 2, 0, 1),
    Sketcher.Constraint("Vertical", 0),
    Sketcher.Constraint("Horizontal", 1),
    Sketcher.Constraint("Equal", 1, 0),
    Sketcher.Constraint("DistanceX", 1, 1, 1, 2, Q("1 in")),
    Sketcher.Constraint("DistanceX", -1, 1, 0, 2, Q("2.75 in")),
    Sketcher.Constraint("DistanceY", 0, 2, -1, 1, Q("3.375 in")),
])
pocket6 = body.newObject("PartDesign::Pocket", "Pocket005")
pocket6.Profile = sketch9
pocket6.Type = "ThroughAll"

doc.recompute()
